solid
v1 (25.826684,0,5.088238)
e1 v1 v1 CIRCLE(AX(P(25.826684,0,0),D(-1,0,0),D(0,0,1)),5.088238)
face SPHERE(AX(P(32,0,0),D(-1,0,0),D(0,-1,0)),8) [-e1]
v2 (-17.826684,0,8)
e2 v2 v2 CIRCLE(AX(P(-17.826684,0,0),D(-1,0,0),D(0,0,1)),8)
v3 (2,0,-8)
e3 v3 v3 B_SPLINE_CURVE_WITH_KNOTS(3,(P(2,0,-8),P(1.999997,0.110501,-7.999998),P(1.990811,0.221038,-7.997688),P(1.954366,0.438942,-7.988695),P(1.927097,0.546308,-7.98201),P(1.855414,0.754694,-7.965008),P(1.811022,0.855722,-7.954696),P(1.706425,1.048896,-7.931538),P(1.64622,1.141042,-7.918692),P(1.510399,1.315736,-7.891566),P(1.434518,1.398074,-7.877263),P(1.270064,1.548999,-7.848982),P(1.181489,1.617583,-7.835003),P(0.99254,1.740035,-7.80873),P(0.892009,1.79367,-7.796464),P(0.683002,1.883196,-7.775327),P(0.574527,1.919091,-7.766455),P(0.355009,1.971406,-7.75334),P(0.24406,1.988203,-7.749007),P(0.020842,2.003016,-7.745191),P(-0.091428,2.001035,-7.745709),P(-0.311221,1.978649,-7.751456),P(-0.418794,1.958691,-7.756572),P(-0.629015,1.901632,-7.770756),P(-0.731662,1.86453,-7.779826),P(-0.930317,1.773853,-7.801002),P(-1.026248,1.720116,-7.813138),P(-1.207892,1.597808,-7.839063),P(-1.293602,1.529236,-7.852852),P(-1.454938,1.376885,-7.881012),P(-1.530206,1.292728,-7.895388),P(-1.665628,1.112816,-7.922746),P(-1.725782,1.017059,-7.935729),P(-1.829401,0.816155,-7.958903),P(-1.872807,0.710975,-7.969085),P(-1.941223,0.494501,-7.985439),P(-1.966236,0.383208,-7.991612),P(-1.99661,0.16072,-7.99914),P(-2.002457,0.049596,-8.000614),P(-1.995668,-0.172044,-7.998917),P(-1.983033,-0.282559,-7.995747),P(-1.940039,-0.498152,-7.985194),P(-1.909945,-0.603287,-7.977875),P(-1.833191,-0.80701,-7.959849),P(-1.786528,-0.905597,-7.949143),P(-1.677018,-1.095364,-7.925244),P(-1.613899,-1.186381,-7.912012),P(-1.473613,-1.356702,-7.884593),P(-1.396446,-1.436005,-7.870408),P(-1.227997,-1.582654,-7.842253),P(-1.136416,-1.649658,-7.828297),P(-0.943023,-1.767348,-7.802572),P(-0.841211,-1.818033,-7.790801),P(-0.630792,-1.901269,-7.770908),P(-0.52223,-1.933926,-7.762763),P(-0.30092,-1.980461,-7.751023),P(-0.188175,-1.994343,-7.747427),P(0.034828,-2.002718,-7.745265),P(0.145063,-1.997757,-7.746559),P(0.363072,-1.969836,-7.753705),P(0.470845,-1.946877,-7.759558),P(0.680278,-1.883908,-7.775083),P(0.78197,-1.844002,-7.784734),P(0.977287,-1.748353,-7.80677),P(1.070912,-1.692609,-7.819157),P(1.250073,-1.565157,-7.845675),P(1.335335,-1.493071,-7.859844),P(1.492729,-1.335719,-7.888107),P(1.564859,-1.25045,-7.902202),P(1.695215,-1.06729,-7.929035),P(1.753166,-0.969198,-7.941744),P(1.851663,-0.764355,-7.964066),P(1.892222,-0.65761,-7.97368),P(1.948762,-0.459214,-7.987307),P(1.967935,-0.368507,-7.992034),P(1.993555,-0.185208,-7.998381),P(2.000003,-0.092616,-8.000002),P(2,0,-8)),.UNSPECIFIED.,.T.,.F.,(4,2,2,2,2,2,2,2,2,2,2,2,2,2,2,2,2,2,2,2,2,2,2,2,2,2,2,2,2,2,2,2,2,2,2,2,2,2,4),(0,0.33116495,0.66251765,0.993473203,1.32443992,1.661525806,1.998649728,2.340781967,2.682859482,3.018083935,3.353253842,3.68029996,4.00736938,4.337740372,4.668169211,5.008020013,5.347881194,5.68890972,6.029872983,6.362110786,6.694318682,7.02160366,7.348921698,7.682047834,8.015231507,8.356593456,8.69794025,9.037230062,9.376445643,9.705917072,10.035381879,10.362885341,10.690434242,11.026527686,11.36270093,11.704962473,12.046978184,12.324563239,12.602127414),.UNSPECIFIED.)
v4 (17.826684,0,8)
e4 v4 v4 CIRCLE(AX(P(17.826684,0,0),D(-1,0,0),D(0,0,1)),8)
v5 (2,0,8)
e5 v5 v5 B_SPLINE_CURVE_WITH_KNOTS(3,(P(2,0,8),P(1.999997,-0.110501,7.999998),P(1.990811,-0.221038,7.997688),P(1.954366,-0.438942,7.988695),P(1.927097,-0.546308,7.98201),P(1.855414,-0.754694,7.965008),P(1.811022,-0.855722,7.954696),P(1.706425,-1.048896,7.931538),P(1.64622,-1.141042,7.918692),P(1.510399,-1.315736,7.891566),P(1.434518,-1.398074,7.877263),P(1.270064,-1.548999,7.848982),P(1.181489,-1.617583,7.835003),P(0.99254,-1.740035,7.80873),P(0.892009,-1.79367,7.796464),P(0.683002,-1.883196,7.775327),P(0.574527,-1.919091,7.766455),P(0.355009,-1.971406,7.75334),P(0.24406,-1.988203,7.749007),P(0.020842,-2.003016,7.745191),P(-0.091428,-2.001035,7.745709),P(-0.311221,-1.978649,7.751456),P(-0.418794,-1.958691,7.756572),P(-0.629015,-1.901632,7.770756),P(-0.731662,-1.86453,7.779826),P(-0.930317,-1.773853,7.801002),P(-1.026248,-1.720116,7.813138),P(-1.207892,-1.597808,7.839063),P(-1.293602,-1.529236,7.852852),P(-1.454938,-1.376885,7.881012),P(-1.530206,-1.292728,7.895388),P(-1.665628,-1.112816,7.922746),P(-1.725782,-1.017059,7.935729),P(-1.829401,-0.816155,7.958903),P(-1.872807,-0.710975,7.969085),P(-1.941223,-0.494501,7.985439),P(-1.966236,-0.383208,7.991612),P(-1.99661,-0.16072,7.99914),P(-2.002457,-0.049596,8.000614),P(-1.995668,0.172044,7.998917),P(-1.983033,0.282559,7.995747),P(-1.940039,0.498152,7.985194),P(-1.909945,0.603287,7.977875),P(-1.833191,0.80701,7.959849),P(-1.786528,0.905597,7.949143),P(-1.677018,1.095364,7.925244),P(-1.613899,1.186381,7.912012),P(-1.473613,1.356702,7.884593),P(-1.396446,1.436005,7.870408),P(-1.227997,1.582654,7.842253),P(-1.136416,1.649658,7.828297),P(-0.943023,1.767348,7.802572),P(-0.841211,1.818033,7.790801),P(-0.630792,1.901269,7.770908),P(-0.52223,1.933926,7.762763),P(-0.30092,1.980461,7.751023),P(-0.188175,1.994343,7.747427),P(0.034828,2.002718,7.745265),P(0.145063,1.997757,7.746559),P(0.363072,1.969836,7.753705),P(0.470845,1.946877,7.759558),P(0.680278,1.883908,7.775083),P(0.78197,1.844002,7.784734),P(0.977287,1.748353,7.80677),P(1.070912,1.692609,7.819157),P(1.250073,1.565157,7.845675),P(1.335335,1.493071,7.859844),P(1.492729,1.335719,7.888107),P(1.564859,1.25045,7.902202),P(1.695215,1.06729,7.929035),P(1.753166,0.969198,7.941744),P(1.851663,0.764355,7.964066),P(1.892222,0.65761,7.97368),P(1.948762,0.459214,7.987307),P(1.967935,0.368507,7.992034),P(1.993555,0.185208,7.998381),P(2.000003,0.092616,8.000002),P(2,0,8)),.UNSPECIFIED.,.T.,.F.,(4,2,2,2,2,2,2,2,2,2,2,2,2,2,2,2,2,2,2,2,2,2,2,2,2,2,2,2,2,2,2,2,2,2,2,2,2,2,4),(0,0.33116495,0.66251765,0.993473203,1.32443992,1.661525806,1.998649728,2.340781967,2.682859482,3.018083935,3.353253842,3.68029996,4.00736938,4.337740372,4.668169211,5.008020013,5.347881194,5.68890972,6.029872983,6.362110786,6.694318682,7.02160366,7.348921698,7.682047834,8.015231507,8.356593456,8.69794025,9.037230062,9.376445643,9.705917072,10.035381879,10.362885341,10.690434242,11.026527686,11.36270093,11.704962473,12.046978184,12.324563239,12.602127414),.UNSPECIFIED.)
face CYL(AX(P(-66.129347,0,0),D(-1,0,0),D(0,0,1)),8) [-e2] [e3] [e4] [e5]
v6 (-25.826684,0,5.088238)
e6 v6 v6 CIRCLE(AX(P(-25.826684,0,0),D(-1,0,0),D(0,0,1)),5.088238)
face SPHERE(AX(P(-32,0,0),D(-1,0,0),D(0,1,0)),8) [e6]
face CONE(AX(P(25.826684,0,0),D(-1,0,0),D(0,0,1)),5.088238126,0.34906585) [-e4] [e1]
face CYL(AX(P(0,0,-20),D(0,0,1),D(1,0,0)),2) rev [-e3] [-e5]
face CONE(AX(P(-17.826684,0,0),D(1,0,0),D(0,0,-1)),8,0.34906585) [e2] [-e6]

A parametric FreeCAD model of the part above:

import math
import FreeCAD as App
import Part
import Sketcher
from FreeCAD import Vector
Q = App.Units.Quantity

doc = App.newDocument("Part")
body = doc.addObject("PartDesign::Body", "Body")

sketch1 = body.newObject("Sketcher::SketchObject", "Sketch")
sketch1.AttachmentSupport = (doc.getObject("XY_Plane"), [""])
sketch1.MapMode = "FlatFace"
sketch1.addGeometry(Part.LineSegment(Vector(-17.826684, 8, 0), Vector(-25.826684, 5.088238, 0)), False)
sketch1.addGeometry(Part.ArcOfCircle(Part.Circle(Vector(-32, 0, 0), Vector(0, 0, 1), 8), math.radians(39.496402), math.radians(180)), False)
sketch1.addGeometry(Part.LineSegment(Vector(-40, 0, 0), Vector(40, 0, 0)), False)
sketch1.addGeometry(Part.ArcOfCircle(Part.Circle(Vector(32, 0, 0), Vector(0, 0, 1), 8), math.radians(0), math.radians(140.503598)), False)
sketch1.addGeometry(Part.LineSegment(Vector(25.826684, 5.088238, 0), Vector(17.826684, 8, 0)), False)
sketch1.addGeometry(Part.LineSegment(Vector(17.826684, 8, 0), Vector(-17.826684, 8, 0)), False)
sketch1.addConstraint(Sketcher.Constraint("Coincident", 0, 2, 1, 1))
sketch1.addConstraint(Sketcher.Constraint("Coincident", 1, 2, 2, 1))
sketch1.addConstraint(Sketcher.Constraint("Coincident", 2, 2, 3, 1))
sketch1.addConstraint(Sketcher.Constraint("Coincident", 3, 2, 4, 1))
sketch1.addConstraint(Sketcher.Constraint("Coincident", 4, 2, 5, 1))
sketch1.addConstraint(Sketcher.Constraint("Coincident", 5, 2, 0, 1))
sketch1.addConstraint(Sketcher.Constraint("Horizontal", 2))
sketch1.addConstraint(Sketcher.Constraint("Horizontal", 5))
sketch1.addConstraint(Sketcher.Constraint("Equal", 1, 3))
sketch1.addConstraint(Sketcher.Constraint("Symmetric", 1, 3, 3, 3, -1, 1))
sketch1.addConstraint(Sketcher.Constraint("Symmetric", 0, 2, 3, 2, -2))
sketch1.addConstraint(Sketcher.Constraint("PointOnObject", 1, 2, -1))
sketch1.addConstraint(Sketcher.Constraint("Equal", 0, 4))
sketch1.addConstraint(Sketcher.Constraint("Radius", 1, Q("8 mm")))
sketch1.addConstraint(Sketcher.Constraint("DistanceX", 2, 1, 2, 2, Q("80 mm")))
sketch1.addConstraint(Sketcher.Constraint("Angle", 0, Q("-160 deg")))
sketch1.addConstraint(Sketcher.Constraint("DistanceY", -1, 1, 4, 2, Q("8 mm")))
sketch1.addConstraint(Sketcher.Constraint("DistanceX", 4, 2, 3, 2, Q("8 mm")))
revolution = body.newObject("PartDesign::Revolution", "Revolution")
revolution.Profile = sketch1
revolution.ReferenceAxis = (sketch1, ["H_Axis"])
revolution.Angle = 360

sketch2 = body.newObject("Sketcher::SketchObject", "Sketch001")
sketch2.AttachmentSupport = (doc.getObject("XY_Plane"), [""])
sketch2.MapMode = "FlatFace"
sketch2.addGeometry(Part.Circle(Vector(0, 0, 0), Vector(0, 0, 1), 2), False)
sketch2.addConstraint(Sketcher.Constraint("Coincident", 0, 3, -1, 1))
sketch2.addConstraint(Sketcher.Constraint("Diameter", 0, Q("4 mm")))
pocket1 = body.newObject("PartDesign::Pocket", "Pocket")
pocket1.Profile = sketch2
pocket1.Length = 40
pocket1.Midplane = True

doc.recompute()
